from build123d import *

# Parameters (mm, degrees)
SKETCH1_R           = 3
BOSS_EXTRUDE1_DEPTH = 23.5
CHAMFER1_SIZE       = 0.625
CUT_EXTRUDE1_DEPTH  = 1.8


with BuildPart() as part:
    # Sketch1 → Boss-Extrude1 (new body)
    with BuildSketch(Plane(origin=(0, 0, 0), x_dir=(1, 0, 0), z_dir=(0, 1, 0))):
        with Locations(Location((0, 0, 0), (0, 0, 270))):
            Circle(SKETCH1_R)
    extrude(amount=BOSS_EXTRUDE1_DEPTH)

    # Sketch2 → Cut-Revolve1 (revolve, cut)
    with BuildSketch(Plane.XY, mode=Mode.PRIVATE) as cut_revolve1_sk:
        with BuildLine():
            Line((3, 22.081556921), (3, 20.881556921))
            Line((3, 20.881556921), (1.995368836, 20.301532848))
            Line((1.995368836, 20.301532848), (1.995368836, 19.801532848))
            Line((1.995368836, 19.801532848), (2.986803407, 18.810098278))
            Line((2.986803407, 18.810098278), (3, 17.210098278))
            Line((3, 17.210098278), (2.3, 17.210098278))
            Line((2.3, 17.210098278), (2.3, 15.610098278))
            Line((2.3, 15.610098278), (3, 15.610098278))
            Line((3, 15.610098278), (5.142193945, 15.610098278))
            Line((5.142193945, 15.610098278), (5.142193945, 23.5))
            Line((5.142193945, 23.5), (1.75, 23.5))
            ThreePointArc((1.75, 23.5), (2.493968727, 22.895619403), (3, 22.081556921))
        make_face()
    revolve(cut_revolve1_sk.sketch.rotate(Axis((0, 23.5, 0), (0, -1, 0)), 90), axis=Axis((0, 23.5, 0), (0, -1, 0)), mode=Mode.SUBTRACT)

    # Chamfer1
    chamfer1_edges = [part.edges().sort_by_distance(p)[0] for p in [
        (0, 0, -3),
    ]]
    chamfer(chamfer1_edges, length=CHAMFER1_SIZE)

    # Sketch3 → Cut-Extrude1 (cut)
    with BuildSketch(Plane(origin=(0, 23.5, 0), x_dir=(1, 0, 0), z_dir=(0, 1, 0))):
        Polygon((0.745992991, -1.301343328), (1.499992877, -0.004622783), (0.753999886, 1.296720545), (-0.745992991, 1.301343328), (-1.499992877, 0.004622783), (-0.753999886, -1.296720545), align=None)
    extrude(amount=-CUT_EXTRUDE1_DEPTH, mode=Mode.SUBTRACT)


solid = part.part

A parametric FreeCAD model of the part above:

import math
import FreeCAD as App
import Part
import Sketcher
Q = App.Units.Quantity


def edges_at(feature, points):
    """Names of the edges that pass closest to the given points."""
    edges = feature.Shape.Edges
    near = lambda p: min(range(len(edges)), key=lambda i: edges[i].distToShape(Part.Vertex(*p))[0])
    return sorted({f"Edge{near(p) + 1}" for p in points})

doc = App.newDocument("Part")
body = doc.addObject("PartDesign::Body", "Body")

# Sketch on XZ plane
sketch1 = body.newObject("Sketcher::SketchObject", "Sketch")
sketch1.AttachmentSupport = (doc.getObject("XZ_Plane"), [""])
sketch1.MapMode = "FlatFace"
sketch1.addGeometry(Part.Circle(App.Vector(0, 0, 0), App.Vector(0, 0, 1), 3), False)
sketch1.addConstraint(Sketcher.Constraint("Coincident", 0, 3, -1, 1))
sketch1.addConstraint(Sketcher.Constraint("Diameter", 0, Q("6 mm")))
pad1 = body.newObject("PartDesign::Pad", "Pad")
pad1.Profile = sketch1
pad1.Length = 23.5
pad1.Reversed = True

# Sketch on XY plane
sketch2 = body.newObject("Sketcher::SketchObject", "Sketch001")
sketch2.AttachmentSupport = (doc.getObject("XY_Plane"), [""])
sketch2.MapMode = "FlatFace"
sketch2.addGeometry(Part.LineSegment(App.Vector(3, 22.081557, 0), App.Vector(3, 20.881557, 0)), False)
sketch2.addGeometry(Part.LineSegment(App.Vector(3, 20.881557, 0), App.Vector(1.995369, 20.301533, 0)), False)
sketch2.addGeometry(Part.LineSegment(App.Vector(1.995369, 20.301533, 0), App.Vector(1.995369, 19.801533, 0)), False)
sketch2.addGeometry(Part.LineSegment(App.Vector(1.995369, 19.801533, 0), App.Vector(2.986803, 18.810098, 0)), False)
sketch2.addGeometry(Part.LineSegment(App.Vector(2.986803, 18.810098, 0), App.Vector(3, 17.210098, 0)), False)
sketch2.addGeometry(Part.LineSegment(App.Vector(3, 17.210098, 0), App.Vector(2.3, 17.210098, 0)), False)
sketch2.addGeometry(Part.LineSegment(App.Vector(2.3, 17.210098, 0), App.Vector(2.3, 15.610098, 0)), False)
sketch2.addGeometry(Part.LineSegment(App.Vector(2.3, 15.610098, 0), App.Vector(5.142194, 15.610098, 0)), False)
sketch2.addGeometry(Part.LineSegment(App.Vector(5.142194, 15.610098, 0), App.Vector(5.142194, 23.5, 0)), False)
sketch2.addGeometry(Part.LineSegment(App.Vector(5.142194, 23.5, 0), App.Vector(1.75, 23.5, 0)), False)
sketch2.addGeometry(Part.ArcOfCircle(Part.Circle(App.Vector(0.320504, 20.980258, 0), App.Vector(0, 0, 1), 2.896992), math.radians(22.343139), math.radians(60.432956)), False)
sketch2.addConstraint(Sketcher.Constraint("Coincident", 0, 2, 1, 1))
sketch2.addConstraint(Sketcher.Constraint("Coincident", 1, 2, 2, 1))
sketch2.addConstraint(Sketcher.Constraint("Coincident", 2, 2, 3, 1))
sketch2.addConstraint(Sketcher.Constraint("Coincident", 3, 2, 4, 1))
sketch2.addConstraint(Sketcher.Constraint("Coincident", 4, 2, 5, 1))
sketch2.addConstraint(Sketcher.Constraint("Coincident", 5, 2, 6, 1))
sketch2.addConstraint(Sketcher.Constraint("Coincident", 6, 2, 7, 1))
sketch2.addConstraint(Sketcher.Constraint("Coincident", 7, 2, 8, 1))
sketch2.addConstraint(Sketcher.Constraint("Coincident", 8, 2, 9, 1))
sketch2.addConstraint(Sketcher.Constraint("Coincident", 9, 2, 10, 2))
sketch2.addConstraint(Sketcher.Constraint("Coincident", 10, 1, 0, 1))
sketch2.addConstraint(Sketcher.Constraint("Vertical", 0))
sketch2.addConstraint(Sketcher.Constraint("Vertical", 2))
sketch2.addConstraint(Sketcher.Constraint("Horizontal", 5))
sketch2.addConstraint(Sketcher.Constraint("Vertical", 6))
sketch2.addConstraint(Sketcher.Constraint("Horizontal", 7))
sketch2.addConstraint(Sketcher.Constraint("Vertical", 8))
sketch2.addConstraint(Sketcher.Constraint("Horizontal", 9))
sketch2.addConstraint(Sketcher.Constraint("Vertical", 0, 2, 4, 2))
sketch2.addConstraint(Sketcher.Constraint("Angle", 1, Q("-150 deg")))
sketch2.addConstraint(Sketcher.Constraint("Angle", 3, Q("-45 deg")))
sketch2.addConstraint(Sketcher.Constraint("DistanceX", 5, 2, 5, 1, Q("0.7 mm")))
sketch2.addConstraint(Sketcher.Constraint("DistanceY", 0, 2, 0, 1, Q("1.2 mm")))
sketch2.addConstraint(Sketcher.Constraint("DistanceY", 2, 2, 2, 1, Q("0.5 mm")))
sketch2.addConstraint(Sketcher.Constraint("DistanceY", 6, 2, 6, 1, Q("1.6 mm")))
sketch2.addConstraint(Sketcher.Constraint("DistanceX", -1, 1, 0, 2, Q("3 mm")))
sketch2.addConstraint(Sketcher.Constraint("DistanceY", -1, 1, 8, 2, Q("23.5 mm")))
sketch2.addConstraint(Sketcher.Constraint("DistanceY", 4, 2, 3, 2, Q("1.6 mm")))
sketch2.addConstraint(Sketcher.Constraint("DistanceX", -1, 1, 9, 2, Q("1.75 mm")))
sketch2.addConstraint(Sketcher.Constraint("Radius", 10, Q("2.896992 mm")))
sketch2.addConstraint(Sketcher.Constraint("DistanceY", 8, 1, 8, 2, Q("7.889902 mm")))
sketch2.addConstraint(Sketcher.Constraint("Distance", 3, Q("1.4021 mm")))
sketch2.addConstraint(Sketcher.Constraint("DistanceY", 0, 2, 10, 3, Q("0.098701 mm")))
sketch2.addConstraint(Sketcher.Constraint("DistanceX", 7, 1, 7, 2, Q("2.842194 mm")))
groove = body.newObject("PartDesign::Groove", "Groove")
groove.Profile = sketch2
groove.ReferenceAxis = (sketch2, ["V_Axis"])
groove.Angle = 360
doc.recompute()

chamfer = body.newObject("PartDesign::Chamfer", "Chamfer")
chamfer.Base = (groove, edges_at(groove, [(0, 0, -3)]))
chamfer.Size = 0.625

# Sketch on XZ plane
sketch3 = body.newObject("Sketcher::SketchObject", "Sketch002")
sketch3.AttachmentSupport = (doc.getObject("XZ_Plane"), [""])
sketch3.MapMode = "FlatFace"
sketch3.AttachmentOffset = App.Placement(App.Vector(0, 0, -23.5), App.Rotation())
sketch3.addGeometry(Part.LineSegment(App.Vector(0.745993, 1.301343, 0), App.Vector(1.499993, 0.004623, 0)), False)
sketch3.addGeometry(Part.LineSegment(App.Vector(1.499993, 0.004623, 0), App.Vector(0.754, -1.296721, 0)), False)
sketch3.addGeometry(Part.LineSegment(App.Vector(0.754, -1.296721, 0), App.Vector(-0.745993, -1.301343, 0)), False)
sketch3.addGeometry(Part.LineSegment(App.Vector(-0.745993, -1.301343, 0), App.Vector(-1.499993, -0.004623, 0)), False)
sketch3.addGeometry(Part.LineSegment(App.Vector(-1.499993, -0.004623, 0), App.Vector(-0.754, 1.296721, 0)), False)
sketch3.addGeometry(Part.LineSegment(App.Vector(-0.754, 1.296721, 0), App.Vector(0.745993, 1.301343, 0)), False)
sketch3.addConstraint(Sketcher.Constraint("Coincident", 0, 2, 1, 1))
sketch3.addConstraint(Sketcher.Constraint("Coincident", 1, 2, 2, 1))
sketch3.addConstraint(Sketcher.Constraint("Coincident", 2, 2, 3, 1))
sketch3.addConstraint(Sketcher.Constraint("Coincident", 3, 2, 4, 1))
sketch3.addConstraint(Sketcher.Constraint("Coincident", 4, 2, 5, 1))
sketch3.addConstraint(Sketcher.Constraint("Coincident", 5, 2, 0, 1))
sketch3.addConstraint(Sketcher.Constraint("Symmetric", 0, 2, 3, 2, -1, 1))
sketch3.addConstraint(Sketcher.Constraint("Symmetric", 1, 2, 4, 2, -1, 1))
sketch3.addConstraint(Sketcher.Constraint("Symmetric", 2, 2, 5, 2, -1, 1))
sketch3.addConstraint(Sketcher.Constraint("Equal", 0, 1))
sketch3.addConstraint(Sketcher.Constraint("Equal", 1, 2))
sketch3.addConstraint(Sketcher.Constraint("Distance", 0, Q("1.5 mm")))
sketch3.addConstraint(Sketcher.Constraint("DistanceX", -1, 1, 1, 2, Q("0.754 mm")))
sketch3.addConstraint(Sketcher.Constraint("DistanceX", 3, 2, 2, 2, Q("0.754 mm")))
sketch3.addConstraint(Sketcher.Constraint("DistanceY", 1, 2, -1, 1, Q("1.296721 mm")))
pocket1 = body.newObject("PartDesign::Pocket", "Pocket")
pocket1.Profile = sketch3
pocket1.Length = 1.8
pocket1.Reversed = True

doc.recompute()
